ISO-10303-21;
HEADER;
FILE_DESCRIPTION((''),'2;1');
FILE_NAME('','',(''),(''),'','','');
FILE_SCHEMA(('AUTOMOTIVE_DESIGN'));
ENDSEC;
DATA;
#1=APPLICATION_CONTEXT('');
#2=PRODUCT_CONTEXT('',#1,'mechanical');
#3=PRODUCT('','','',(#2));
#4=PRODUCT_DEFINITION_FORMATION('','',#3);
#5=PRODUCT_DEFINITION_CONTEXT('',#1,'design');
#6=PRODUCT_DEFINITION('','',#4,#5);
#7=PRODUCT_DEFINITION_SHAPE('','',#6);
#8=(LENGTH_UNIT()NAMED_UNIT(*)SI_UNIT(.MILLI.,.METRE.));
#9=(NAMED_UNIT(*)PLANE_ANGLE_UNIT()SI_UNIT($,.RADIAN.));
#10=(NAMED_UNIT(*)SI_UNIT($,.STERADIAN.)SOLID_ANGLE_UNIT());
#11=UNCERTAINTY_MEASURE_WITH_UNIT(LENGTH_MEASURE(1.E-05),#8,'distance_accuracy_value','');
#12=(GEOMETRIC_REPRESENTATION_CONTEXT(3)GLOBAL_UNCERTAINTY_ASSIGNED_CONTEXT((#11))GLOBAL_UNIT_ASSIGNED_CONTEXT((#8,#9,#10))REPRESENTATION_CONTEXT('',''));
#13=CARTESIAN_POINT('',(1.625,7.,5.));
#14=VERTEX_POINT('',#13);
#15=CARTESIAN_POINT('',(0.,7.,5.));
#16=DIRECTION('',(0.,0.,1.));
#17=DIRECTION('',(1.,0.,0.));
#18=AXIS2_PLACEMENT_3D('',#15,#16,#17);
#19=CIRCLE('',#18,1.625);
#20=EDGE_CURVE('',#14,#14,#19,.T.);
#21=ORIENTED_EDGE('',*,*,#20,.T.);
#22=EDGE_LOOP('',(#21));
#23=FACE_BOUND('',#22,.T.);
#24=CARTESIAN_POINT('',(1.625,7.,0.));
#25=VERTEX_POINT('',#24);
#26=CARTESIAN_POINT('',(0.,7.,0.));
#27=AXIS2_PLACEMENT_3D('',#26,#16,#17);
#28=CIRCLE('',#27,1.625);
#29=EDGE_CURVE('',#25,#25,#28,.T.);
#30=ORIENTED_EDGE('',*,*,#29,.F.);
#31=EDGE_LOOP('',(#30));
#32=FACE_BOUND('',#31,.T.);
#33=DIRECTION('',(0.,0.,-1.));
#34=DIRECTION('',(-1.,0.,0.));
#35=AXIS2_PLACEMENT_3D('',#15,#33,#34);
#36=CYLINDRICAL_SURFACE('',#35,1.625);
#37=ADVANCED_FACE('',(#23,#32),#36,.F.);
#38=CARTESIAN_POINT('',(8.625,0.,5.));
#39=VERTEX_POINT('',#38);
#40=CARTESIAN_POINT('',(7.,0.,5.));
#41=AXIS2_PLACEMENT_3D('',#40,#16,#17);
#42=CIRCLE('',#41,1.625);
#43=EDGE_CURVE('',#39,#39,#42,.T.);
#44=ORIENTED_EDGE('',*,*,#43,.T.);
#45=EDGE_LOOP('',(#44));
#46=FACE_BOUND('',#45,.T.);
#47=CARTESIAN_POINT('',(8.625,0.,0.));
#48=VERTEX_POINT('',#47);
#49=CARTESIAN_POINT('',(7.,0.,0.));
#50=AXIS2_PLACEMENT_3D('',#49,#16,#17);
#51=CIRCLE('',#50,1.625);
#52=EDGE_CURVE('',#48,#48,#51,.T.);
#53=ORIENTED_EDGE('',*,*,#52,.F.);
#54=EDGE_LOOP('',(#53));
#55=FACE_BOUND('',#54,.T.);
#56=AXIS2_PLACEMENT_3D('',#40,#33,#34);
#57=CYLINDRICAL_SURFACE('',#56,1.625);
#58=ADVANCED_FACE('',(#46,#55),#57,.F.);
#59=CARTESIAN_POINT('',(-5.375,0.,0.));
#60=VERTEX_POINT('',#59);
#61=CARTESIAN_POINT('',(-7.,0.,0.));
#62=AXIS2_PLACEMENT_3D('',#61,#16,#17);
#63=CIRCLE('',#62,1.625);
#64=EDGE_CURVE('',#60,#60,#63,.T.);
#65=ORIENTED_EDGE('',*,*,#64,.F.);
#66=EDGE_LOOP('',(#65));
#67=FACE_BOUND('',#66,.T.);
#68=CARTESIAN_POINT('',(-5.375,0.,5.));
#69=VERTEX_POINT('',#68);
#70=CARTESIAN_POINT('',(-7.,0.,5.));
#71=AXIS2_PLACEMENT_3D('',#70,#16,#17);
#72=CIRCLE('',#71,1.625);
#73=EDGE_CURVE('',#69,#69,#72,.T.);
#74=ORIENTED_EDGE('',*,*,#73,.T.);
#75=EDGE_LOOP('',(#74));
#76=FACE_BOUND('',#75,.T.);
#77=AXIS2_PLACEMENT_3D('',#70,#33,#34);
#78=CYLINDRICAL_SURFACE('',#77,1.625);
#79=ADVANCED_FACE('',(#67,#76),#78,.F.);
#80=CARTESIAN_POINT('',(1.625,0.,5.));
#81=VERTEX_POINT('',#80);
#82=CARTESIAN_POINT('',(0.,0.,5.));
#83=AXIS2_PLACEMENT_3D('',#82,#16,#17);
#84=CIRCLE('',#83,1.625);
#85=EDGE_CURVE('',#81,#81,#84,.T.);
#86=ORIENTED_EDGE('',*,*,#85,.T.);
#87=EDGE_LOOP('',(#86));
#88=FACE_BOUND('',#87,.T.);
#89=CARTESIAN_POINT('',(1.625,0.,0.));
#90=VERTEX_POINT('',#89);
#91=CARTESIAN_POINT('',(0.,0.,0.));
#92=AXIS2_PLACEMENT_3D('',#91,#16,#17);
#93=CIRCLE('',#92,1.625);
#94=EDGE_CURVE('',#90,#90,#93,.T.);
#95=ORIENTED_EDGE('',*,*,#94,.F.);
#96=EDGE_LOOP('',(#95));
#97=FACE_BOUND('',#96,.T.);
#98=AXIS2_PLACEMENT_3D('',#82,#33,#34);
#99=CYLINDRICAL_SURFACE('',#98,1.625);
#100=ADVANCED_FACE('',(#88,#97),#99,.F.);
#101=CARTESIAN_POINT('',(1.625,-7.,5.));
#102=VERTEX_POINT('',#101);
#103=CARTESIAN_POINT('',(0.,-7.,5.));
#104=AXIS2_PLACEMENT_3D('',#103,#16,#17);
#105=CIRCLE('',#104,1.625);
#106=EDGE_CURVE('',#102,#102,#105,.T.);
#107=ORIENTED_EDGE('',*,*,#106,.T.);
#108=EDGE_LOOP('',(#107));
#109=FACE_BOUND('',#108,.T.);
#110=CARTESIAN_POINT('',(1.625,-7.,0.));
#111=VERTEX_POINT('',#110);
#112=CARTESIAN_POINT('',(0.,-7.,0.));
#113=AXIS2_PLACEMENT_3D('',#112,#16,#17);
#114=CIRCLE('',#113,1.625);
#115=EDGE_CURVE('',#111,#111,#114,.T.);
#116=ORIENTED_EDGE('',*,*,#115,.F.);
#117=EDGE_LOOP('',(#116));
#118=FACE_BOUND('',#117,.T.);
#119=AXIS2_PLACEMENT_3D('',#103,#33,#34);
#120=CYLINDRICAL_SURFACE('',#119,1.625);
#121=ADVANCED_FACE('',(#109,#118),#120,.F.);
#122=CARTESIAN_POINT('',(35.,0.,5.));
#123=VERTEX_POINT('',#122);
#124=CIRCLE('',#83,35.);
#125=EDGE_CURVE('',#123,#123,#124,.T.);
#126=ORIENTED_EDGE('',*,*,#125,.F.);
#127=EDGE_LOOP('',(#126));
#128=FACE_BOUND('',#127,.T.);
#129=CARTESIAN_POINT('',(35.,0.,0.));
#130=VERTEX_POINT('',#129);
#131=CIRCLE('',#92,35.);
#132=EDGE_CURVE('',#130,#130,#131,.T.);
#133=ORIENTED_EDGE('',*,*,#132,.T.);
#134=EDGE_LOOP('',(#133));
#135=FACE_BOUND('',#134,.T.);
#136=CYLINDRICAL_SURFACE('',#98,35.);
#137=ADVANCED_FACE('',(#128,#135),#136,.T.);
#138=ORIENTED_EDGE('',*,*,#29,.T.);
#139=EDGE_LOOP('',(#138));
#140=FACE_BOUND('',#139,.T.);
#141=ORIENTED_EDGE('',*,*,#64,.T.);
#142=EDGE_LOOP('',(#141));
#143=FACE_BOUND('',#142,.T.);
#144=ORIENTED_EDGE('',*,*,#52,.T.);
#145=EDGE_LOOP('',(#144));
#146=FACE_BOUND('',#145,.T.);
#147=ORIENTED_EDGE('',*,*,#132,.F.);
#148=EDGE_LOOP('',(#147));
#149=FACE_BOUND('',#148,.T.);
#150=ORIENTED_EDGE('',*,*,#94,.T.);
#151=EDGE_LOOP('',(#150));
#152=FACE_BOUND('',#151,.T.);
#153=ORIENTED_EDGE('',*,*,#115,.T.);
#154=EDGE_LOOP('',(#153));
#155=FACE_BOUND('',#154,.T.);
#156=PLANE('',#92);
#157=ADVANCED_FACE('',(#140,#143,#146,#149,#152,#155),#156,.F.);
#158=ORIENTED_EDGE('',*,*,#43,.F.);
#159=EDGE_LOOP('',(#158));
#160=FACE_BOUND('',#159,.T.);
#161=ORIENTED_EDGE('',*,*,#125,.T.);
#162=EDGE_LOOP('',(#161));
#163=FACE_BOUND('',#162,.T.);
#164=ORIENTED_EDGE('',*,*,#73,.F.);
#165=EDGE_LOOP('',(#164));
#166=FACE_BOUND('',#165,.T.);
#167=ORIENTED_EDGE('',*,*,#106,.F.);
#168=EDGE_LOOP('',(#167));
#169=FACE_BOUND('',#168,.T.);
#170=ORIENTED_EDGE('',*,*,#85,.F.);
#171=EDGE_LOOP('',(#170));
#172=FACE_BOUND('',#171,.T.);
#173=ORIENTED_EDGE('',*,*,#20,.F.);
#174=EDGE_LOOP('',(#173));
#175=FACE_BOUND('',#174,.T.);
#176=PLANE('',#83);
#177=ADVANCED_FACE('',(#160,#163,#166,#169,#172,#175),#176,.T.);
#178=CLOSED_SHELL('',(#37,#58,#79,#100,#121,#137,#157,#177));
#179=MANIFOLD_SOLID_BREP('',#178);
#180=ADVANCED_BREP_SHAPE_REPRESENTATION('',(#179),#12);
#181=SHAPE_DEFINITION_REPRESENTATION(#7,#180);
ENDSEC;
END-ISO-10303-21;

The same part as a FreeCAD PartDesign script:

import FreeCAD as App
import Part
import Sketcher

doc = App.newDocument("Part")
params = doc.addObject("Spreadsheet::Sheet", "Params")
for row, (alias, value) in enumerate([
    ("sketch1_diameter", "70 mm"),
    ("sketch1_diameter2", "3.25 mm"),
    ("pad1_length", "5 mm"),
], start=1):
    params.set(f"A{row}", alias)
    params.set(f"B{row}", "=" + value)
    params.setAlias(f"B{row}", alias)

body = doc.addObject("PartDesign::Body", "Body")

# Sketch on XY plane
sketch1 = body.newObject("Sketcher::SketchObject", "Sketch")
sketch1.AttachmentSupport = (doc.getObject("XY_Plane"), [""])
sketch1.MapMode = "FlatFace"
sketch1.addGeometry([
    Part.Circle(App.Vector(0, 0, 0), App.Vector(0, 0, 1), 35),  # 0
    Part.Circle(App.Vector(0, -7, 0), App.Vector(0, 0, 1), 1.6),  # 1
    Part.Circle(App.Vector(-7, 0, 0), App.Vector(0, 0, 1), 1.6),  # 2
    Part.Circle(App.Vector(0, 0, 0), App.Vector(0, 0, 1), 1.6),  # 3
    Part.Circle(App.Vector(7, 0, 0), App.Vector(0, 0, 1), 1.6),  # 4
    Part.Circle(App.Vector(0, 7, 0), App.Vector(0, 0, 1), 1.6),  # 5
], False)
sketch1.addConstraint([
    Sketcher.Constraint("Coincident", 0, 3, -1, 1),
    Sketcher.Constraint("Coincident", 3, 3, -1, 1),
    Sketcher.Constraint("Equal", 1, 2),
    Sketcher.Constraint("Equal", 2, 3),
    Sketcher.Constraint("Equal", 3, 4),
    Sketcher.Constraint("Equal", 4, 5),
    Sketcher.Constraint("Symmetric", 2, 3, 4, 3, -1, 1),
    Sketcher.Constraint("Symmetric", 1, 3, 5, 3, -1, 1),
    Sketcher.Constraint("PointOnObject", 1, 3, -2),
    Sketcher.Constraint("PointOnObject", 2, 3, -1),
    Sketcher.Constraint("Diameter", 0, 70.0),
    Sketcher.Constraint("Diameter", 1, 3.25),
    Sketcher.Constraint("DistanceY", 1, 3, -1, 1, 7.0),
    Sketcher.Constraint("DistanceX", 2, 3, -1, 1, 7.0),
])
sketch1.setExpression("Constraints[10]", "Params.sketch1_diameter")
sketch1.setExpression("Constraints[11]", "Params.sketch1_diameter2")
pad1 = body.newObject("PartDesign::Pad", "Pad")
pad1.Profile = sketch1
pad1.setExpression("Length", "Params.pad1_length")

doc.recompute()
